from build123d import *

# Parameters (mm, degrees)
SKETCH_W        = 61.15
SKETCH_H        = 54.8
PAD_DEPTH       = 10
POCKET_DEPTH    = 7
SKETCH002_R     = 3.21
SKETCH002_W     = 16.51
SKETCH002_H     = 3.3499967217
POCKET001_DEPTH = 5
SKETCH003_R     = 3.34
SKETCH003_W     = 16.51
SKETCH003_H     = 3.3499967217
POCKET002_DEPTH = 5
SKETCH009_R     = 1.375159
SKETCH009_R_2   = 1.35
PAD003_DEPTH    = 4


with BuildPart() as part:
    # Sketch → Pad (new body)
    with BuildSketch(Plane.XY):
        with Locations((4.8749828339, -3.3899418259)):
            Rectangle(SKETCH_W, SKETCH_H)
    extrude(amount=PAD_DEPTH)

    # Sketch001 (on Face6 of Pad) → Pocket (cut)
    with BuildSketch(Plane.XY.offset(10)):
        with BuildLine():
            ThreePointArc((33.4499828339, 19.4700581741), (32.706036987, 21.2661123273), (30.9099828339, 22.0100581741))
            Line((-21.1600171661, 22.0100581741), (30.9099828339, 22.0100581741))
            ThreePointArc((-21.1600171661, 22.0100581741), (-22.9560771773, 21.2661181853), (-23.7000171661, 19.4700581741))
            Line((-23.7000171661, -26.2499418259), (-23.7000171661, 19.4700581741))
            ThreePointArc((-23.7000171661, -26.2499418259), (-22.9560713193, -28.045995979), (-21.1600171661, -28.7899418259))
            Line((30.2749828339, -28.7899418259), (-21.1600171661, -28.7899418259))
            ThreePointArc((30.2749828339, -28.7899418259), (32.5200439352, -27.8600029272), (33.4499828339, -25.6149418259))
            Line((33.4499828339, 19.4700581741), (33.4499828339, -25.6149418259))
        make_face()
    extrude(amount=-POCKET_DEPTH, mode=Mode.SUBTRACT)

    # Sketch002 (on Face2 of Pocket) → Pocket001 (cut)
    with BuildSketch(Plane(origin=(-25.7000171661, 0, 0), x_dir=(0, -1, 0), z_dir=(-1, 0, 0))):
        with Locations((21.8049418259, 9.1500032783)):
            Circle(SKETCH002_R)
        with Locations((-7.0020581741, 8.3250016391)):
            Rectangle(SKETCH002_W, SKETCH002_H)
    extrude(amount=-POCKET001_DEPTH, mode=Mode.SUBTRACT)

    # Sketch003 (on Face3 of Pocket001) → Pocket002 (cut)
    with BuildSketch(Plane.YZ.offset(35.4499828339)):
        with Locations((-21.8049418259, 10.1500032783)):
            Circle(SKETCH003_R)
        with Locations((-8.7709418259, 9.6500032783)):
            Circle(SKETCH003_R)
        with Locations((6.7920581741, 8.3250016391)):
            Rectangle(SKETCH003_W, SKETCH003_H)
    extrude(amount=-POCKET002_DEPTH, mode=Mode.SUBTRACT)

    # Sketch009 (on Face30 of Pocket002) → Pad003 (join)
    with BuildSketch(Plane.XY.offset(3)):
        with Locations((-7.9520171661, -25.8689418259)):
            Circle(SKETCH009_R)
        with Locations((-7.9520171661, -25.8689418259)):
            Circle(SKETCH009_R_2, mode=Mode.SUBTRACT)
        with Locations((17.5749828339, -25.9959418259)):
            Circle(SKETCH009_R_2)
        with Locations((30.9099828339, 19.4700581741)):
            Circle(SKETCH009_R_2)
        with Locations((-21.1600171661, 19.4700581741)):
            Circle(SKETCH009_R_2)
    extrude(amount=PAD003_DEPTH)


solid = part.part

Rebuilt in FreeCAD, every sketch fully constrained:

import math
import FreeCAD as App
import Part
import Sketcher

V = App.Vector


def add_polygon(sketch, points):
    """Adds a closed chain of lines whose ends are joined by coincident constraints."""
    first, n = sketch.GeometryCount, len(points)
    for a, b in zip(points, points[1:] + points[:1]):
        sketch.addGeometry(Part.LineSegment(App.Vector(*a, 0), App.Vector(*b, 0)), False)
    for i in range(n):
        sketch.addConstraint(Sketcher.Constraint("Coincident", first + i, 2, first + (i + 1) % n, 1))

doc = App.newDocument("Part")
body = doc.addObject("PartDesign::Body", "Body")

# Sketch on XY plane
sketch1 = doc.addObject("Sketcher::SketchObject", "Sketch")
body.addObject(sketch1)
sketch1.AttachmentSupport = (doc.XY_Plane, [""])
sketch1.MapMode = "FlatFace"
add_polygon(sketch1, [(-26, 24), (-26, -31), (35, -31), (35, 24)])  # lines 0-3
sketch1.addConstraint([
    Sketcher.Constraint("Vertical", 0),
    Sketcher.Constraint("Horizontal", 1),
    Sketcher.Constraint("Vertical", 2),
    Sketcher.Constraint("Horizontal", 3),
    Sketcher.Constraint("DistanceY", 0, 2, 0, 1, 54.8),
    Sketcher.Constraint("DistanceX", 1, 1, 1, 2, 61.15),
    Sketcher.Constraint("DistanceY", 0, 2, -1, 1, 30.789942),
    Sketcher.Constraint("DistanceX", 0, 2, -1, 1, 25.700017),
])
pad1 = doc.addObject("PartDesign::Pad", "Pad")
body.addObject(pad1)
pad1.Profile = sketch1
pad1.Length = 10

# Sketch on XY plane
sketch2 = doc.addObject("Sketcher::SketchObject", "Sketch001")
body.addObject(sketch2)
sketch2.AttachmentSupport = (doc.XY_Plane, [""])
sketch2.MapMode = "FlatFace"
sketch2.AttachmentOffset = App.Placement(V(0, 0, 10), App.Rotation())
sketch2.addGeometry([
    Part.ArcOfCircle(Part.Circle(V(30.9, 19.5, 0), V(0, 0, 1), 2.5), math.radians(0), math.radians(90)),  # 0
    Part.LineSegment(V(30.9, 22, 0), V(-21.2, 22, 0)),  # 1
    Part.ArcOfCircle(Part.Circle(V(-21.2, 19.5, 0), V(0, 0, 1), 2.5), math.radians(90), math.radians(180)),  # 2
    Part.LineSegment(V(-23.7, 19.5, 0), V(-23.7, -26.2, 0)),  # 3
    Part.ArcOfCircle(Part.Circle(V(-21.2, -26.2, 0), V(0, 0, 1), 2.5), math.radians(180), math.radians(270)),  # 4
    Part.LineSegment(V(-21.2, -28.8, 0), V(30.3, -28.8, 0)),  # 5
    Part.ArcOfCircle(Part.Circle(V(30.3, -25.6, 0), V(0, 0, 1), 3.2), math.radians(-90), math.radians(0)),  # 6
    Part.LineSegment(V(33.4, -25.6, 0), V(33.4, 19.5, 0)),  # 7
], False)
sketch2.addConstraint([
    Sketcher.Constraint("Coincident", 0, 2, 1, 1),
    Sketcher.Constraint("Coincident", 1, 2, 2, 1),
    Sketcher.Constraint("Coincident", 2, 2, 3, 1),
    Sketcher.Constraint("Coincident", 3, 2, 4, 1),
    Sketcher.Constraint("Coincident", 4, 2, 5, 1),
    Sketcher.Constraint("Coincident", 5, 2, 6, 1),
    Sketcher.Constraint("Coincident", 6, 2, 7, 1),
    Sketcher.Constraint("Coincident", 7, 2, 0, 1),
    Sketcher.Constraint("Horizontal", 1),
    Sketcher.Constraint("Vertical", 3),
    Sketcher.Constraint("Horizontal", 5),
    Sketcher.Constraint("Vertical", 7),
    Sketcher.Constraint("Equal", 0, 4),
    Sketcher.Constraint("Horizontal", 2, 2, 7, 2),
    Sketcher.Constraint("Vertical", 1, 2, 4, 2),
    Sketcher.Constraint("DistanceX", 1, 2, 1, 1, 52.07),
    Sketcher.Constraint("DistanceY", 3, 2, 3, 1, 45.72),
    Sketcher.Constraint("DistanceY", 4, 2, 1, 2, 50.8),
    Sketcher.Constraint("DistanceX", 5, 1, 5, 2, 51.435),
    Sketcher.Constraint("DistanceY", 7, 1, 7, 2, 45.085),
    Sketcher.Constraint("Radius", 0, 2.53999),
    Sketcher.Constraint("Radius", 2, 2.53997),
    Sketcher.Constraint("Radius", 6, 3.17501),
    Sketcher.Constraint("DistanceX", 2, 2, 1, 2, 2.54),
    Sketcher.Constraint("DistanceY", 2, 2, 1, 2, 2.54),
    Sketcher.Constraint("DistanceX", 0, 2, 6, 2, 2.54),
    Sketcher.Constraint("DistanceY", -1, 1, 0, 3, 19.470068),
    Sketcher.Constraint("DistanceX", -1, 1, 0, 3, 30.909993),
])
pocket1 = doc.addObject("PartDesign::Pocket", "Pocket")
body.addObject(pocket1)
pocket1.Profile = sketch2
pocket1.Length = 7

# Sketch on YZ plane
sketch3 = doc.addObject("Sketcher::SketchObject", "Sketch002")
body.addObject(sketch3)
sketch3.AttachmentSupport = (doc.YZ_Plane, [""])
sketch3.MapMode = "FlatFace"
sketch3.AttachmentOffset = App.Placement(V(0, 0, -25.700017), App.Rotation())
sketch3.addGeometry(Part.Circle(V(-21.8, 9.2, 0), V(0, 0, 1), 3.2), False)  # 0
add_polygon(sketch3, [(15.3, 10), (15.3, 6.7), (-1.3, 6.7), (-1.3, 10)])  # lines 1-4
sketch3.addConstraint([
    Sketcher.Constraint("Vertical", 1),
    Sketcher.Constraint("Horizontal", 2),
    Sketcher.Constraint("Vertical", 3),
    Sketcher.Constraint("Horizontal", 4),
    Sketcher.Constraint("Diameter", 0, 6.42),
    Sketcher.Constraint("DistanceY", -1, 1, 3, 2, 10.0),
    Sketcher.Constraint("DistanceX", 2, 2, 2, 1, 16.51),
    Sketcher.Constraint("DistanceY", 1, 2, 0, 3, 2.5),
    Sketcher.Constraint("DistanceX", 0, 3, 1, 2, 37.062),
    Sketcher.Constraint("DistanceY", 1, 2, 1, 1, 3.349997),
    Sketcher.Constraint("DistanceX", 0, 3, -1, 1, 21.804942),
])
pocket2 = doc.addObject("PartDesign::Pocket", "Pocket001")
body.addObject(pocket2)
pocket2.Profile = sketch3
pocket2.Length = 5
pocket2.Reversed = True

# Sketch on YZ plane
sketch4 = doc.addObject("Sketcher::SketchObject", "Sketch003")
body.addObject(sketch4)
sketch4.AttachmentSupport = (doc.YZ_Plane, [""])
sketch4.MapMode = "FlatFace"
sketch4.AttachmentOffset = App.Placement(V(0, 0, 35.449983), App.Rotation())
sketch4.addGeometry(Part.Circle(V(-21.8, 10.2, 0), V(0, 0, 1), 3.3), False)  # 0
sketch4.addGeometry(Part.Circle(V(-8.8, 9.7, 0), V(0, 0, 1), 3.3), False)  # 1
add_polygon(sketch4, [(-1.5, 10), (-1.5, 6.7), (15, 6.7), (15, 10)])  # lines 2-5
sketch4.addConstraint([
    Sketcher.Constraint("Vertical", 2),
    Sketcher.Constraint("Horizontal", 3),
    Sketcher.Constraint("Vertical", 4),
    Sketcher.Constraint("Horizontal", 5),
    Sketcher.Constraint("Equal", 0, 1),
    Sketcher.Constraint("Diameter", 0, 6.68),
    Sketcher.Constraint("DistanceY", -1, 1, 4, 2, 10.0),
    Sketcher.Constraint("DistanceY", 2, 2, 1, 3, 3.0),
    Sketcher.Constraint("DistanceX", 3, 1, 3, 2, 16.51),
    Sketcher.Constraint("DistanceY", 1, 3, 0, 3, 0.5),
    Sketcher.Constraint("DistanceX", 0, 3, 1, 3, 13.034),
    Sketcher.Constraint("DistanceX", 1, 3, 2, 2, 7.308),
    Sketcher.Constraint("DistanceY", 2, 2, 2, 1, 3.349997),
    Sketcher.Constraint("DistanceX", 0, 3, -1, 1, 21.804942),
])
pocket3 = doc.addObject("PartDesign::Pocket", "Pocket002")
body.addObject(pocket3)
pocket3.Profile = sketch4
pocket3.Length = 5

# Sketch on XY plane
sketch5 = doc.addObject("Sketcher::SketchObject", "Sketch004")
body.addObject(sketch5)
sketch5.AttachmentSupport = (doc.XY_Plane, [""])
sketch5.MapMode = "FlatFace"
sketch5.AttachmentOffset = App.Placement(V(0, 0, 3), App.Rotation())
sketch5.addGeometry([
    Part.Circle(V(-8, -25.9, 0), V(0, 0, 1), 1.4),  # 0
    Part.Circle(V(-8, -25.9, 0), V(0, 0, 1), 1.4),  # 1
    Part.Circle(V(17.6, -26, 0), V(0, 0, 1), 1.4),  # 2
    Part.Circle(V(30.9, 19.5, 0), V(0, 0, 1), 1.4),  # 3
    Part.Circle(V(-21.2, 19.5, 0), V(0, 0, 1), 1.4),  # 4
], False)
sketch5.addConstraint([
    Sketcher.Constraint("Coincident", 1, 3, 0, 3),
    Sketcher.Constraint("Equal", 1, 2),
    Sketcher.Constraint("Equal", 2, 3),
    Sketcher.Constraint("Equal", 3, 4),
    Sketcher.Constraint("Horizontal", 3, 3, 4, 3),
    Sketcher.Constraint("Diameter", 1, 2.7),
    Sketcher.Constraint("Diameter", 0, 2.750318),
    Sketcher.Constraint("DistanceX", 4, 3, 3, 3, 52.07),
    Sketcher.Constraint("DistanceX", 0, 3, 2, 3, 25.527),
    Sketcher.Constraint("DistanceY", 2, 3, 0, 3, 0.127),
    Sketcher.Constraint("DistanceX", 2, 3, 3, 3, 13.335),
    Sketcher.Constraint("DistanceY", 2, 3, 3, 3, 45.466),
    Sketcher.Constraint("DistanceY", 0, 3, -1, 1, 25.868942),
    Sketcher.Constraint("DistanceX", 0, 3, -1, 1, 7.952017),
])
pad2 = doc.addObject("PartDesign::Pad", "Pad001")
body.addObject(pad2)
pad2.Profile = sketch5
pad2.Length = 4

doc.recompute()
